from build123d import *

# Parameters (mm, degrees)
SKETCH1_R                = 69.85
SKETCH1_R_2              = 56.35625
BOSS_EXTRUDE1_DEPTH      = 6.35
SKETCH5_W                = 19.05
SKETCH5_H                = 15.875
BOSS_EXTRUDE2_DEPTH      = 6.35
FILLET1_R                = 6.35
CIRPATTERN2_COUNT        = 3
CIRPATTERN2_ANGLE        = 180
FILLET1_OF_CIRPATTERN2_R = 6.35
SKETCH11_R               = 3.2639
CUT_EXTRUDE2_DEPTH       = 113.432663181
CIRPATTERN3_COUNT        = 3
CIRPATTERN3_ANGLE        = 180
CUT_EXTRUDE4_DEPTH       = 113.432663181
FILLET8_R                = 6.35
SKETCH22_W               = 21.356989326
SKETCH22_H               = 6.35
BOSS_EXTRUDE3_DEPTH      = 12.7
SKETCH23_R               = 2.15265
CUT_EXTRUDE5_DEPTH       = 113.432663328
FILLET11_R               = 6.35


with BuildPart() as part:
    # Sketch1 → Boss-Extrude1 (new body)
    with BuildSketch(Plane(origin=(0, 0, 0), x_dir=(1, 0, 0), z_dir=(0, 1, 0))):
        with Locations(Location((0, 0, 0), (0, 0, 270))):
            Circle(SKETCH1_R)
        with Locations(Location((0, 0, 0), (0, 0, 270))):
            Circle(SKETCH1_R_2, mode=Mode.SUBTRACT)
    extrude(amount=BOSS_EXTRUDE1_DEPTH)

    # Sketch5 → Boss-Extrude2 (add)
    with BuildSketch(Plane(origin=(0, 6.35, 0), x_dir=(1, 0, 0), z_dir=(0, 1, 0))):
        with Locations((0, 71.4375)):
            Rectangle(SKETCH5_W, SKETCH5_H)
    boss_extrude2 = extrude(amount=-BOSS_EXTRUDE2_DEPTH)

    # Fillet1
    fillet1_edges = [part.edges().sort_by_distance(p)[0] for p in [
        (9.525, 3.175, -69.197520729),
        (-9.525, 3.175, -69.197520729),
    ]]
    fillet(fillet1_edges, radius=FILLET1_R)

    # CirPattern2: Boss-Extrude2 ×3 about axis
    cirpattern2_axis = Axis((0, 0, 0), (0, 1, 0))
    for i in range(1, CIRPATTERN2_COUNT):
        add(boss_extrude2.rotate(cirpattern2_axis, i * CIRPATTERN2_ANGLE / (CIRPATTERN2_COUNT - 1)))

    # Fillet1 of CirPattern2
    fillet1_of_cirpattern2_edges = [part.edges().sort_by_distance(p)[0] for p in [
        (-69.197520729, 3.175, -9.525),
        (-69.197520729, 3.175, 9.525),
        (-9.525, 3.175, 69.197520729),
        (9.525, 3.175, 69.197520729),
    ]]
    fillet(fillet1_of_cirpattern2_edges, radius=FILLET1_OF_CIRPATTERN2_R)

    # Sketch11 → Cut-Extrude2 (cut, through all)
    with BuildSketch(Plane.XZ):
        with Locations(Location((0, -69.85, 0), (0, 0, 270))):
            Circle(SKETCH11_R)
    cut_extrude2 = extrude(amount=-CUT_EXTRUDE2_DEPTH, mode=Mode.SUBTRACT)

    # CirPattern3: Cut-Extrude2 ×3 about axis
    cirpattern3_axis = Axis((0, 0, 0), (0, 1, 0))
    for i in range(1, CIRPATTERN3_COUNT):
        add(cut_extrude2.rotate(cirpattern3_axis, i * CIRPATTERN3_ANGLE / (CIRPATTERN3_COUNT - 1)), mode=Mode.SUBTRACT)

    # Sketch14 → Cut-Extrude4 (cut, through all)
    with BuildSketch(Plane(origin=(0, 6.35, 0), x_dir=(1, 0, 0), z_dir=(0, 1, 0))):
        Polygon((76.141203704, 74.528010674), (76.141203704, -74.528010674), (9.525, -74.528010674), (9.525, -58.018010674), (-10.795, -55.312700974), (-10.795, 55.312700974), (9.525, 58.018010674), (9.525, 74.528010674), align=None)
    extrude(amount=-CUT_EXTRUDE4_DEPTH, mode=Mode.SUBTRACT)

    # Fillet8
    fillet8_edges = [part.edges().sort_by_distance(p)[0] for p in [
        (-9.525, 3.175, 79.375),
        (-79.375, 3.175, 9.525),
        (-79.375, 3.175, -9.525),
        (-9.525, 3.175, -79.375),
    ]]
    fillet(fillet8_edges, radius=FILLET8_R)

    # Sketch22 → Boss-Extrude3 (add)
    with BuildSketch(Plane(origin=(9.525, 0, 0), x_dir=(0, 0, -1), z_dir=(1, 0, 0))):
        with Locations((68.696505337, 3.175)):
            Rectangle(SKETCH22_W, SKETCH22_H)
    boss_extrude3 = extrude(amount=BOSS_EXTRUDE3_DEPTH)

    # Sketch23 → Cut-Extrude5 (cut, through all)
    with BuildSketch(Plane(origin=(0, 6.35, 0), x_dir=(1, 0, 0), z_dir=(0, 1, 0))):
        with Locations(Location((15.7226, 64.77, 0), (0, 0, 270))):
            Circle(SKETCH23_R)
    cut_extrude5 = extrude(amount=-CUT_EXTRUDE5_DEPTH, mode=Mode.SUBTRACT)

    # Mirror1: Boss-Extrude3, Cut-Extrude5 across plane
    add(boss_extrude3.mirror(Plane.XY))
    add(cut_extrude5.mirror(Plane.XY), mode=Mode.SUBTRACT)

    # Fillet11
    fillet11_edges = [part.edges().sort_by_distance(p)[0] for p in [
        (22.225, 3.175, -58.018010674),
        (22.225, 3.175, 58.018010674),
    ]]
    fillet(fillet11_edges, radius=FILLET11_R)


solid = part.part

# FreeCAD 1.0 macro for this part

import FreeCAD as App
import Part
import Sketcher

V = App.Vector
Q = App.Units.Quantity


def edges_at(feature, points):
    """Names of the edges that pass closest to the given points."""
    edges = feature.Shape.Edges
    near = lambda p: min(range(len(edges)), key=lambda i: edges[i].distToShape(Part.Vertex(*p))[0])
    return sorted({f"Edge{near(p) + 1}" for p in points})


def add_polygon(sketch, points):
    """Adds a closed chain of lines whose ends are joined by coincident constraints."""
    first, n = sketch.GeometryCount, len(points)
    for a, b in zip(points, points[1:] + points[:1]):
        sketch.addGeometry(Part.LineSegment(App.Vector(*a, 0), App.Vector(*b, 0)), False)
    for i in range(n):
        sketch.addConstraint(Sketcher.Constraint("Coincident", first + i, 2, first + (i + 1) % n, 1))

doc = App.newDocument("Part")
body = doc.addObject("PartDesign::Body", "Body")

# Sketch on XZ plane
sketch1 = doc.addObject("Sketcher::SketchObject", "Sketch")
body.addObject(sketch1)
sketch1.AttachmentSupport = (doc.XZ_Plane, [""])
sketch1.MapMode = "FlatFace"
sketch1.addGeometry(Part.Circle(V(0, 0, 0), V(0, 0, 1), 69.85), False)
sketch1.addGeometry(Part.Circle(V(0, 0, 0), V(0, 0, 1), 56.35625), False)
sketch1.addConstraint(Sketcher.Constraint("Coincident", 0, 3, -1, 1))
sketch1.addConstraint(Sketcher.Constraint("Coincident", 1, 3, -1, 1))
sketch1.addConstraint(Sketcher.Constraint("Diameter", 0, Q("5.5 in")))
sketch1.addConstraint(Sketcher.Constraint("Diameter", 1, Q("4.4375 in")))
pad1 = doc.addObject("PartDesign::Pad", "Pad")
body.addObject(pad1)
pad1.Profile = sketch1
pad1.Length = Q("0.25 in")
pad1.Reversed = True

# Sketch on XZ plane
sketch2 = doc.addObject("Sketcher::SketchObject", "Sketch001")
body.addObject(sketch2)
sketch2.AttachmentSupport = (doc.XZ_Plane, [""])
sketch2.MapMode = "FlatFace"
sketch2.AttachmentOffset = App.Placement(V(0, 0, -0.25 * 25.4), App.Rotation())
add_polygon(sketch2, [(-9.525, -79.375), (-9.525, -63.5), (9.525, -63.5), (9.525, -79.375)])  # lines 0-3
sketch2.addConstraint(Sketcher.Constraint("Vertical", 0))
sketch2.addConstraint(Sketcher.Constraint("Horizontal", 1))
sketch2.addConstraint(Sketcher.Constraint("Vertical", 2))
sketch2.addConstraint(Sketcher.Constraint("Horizontal", 3))
sketch2.addConstraint(Sketcher.Constraint("DistanceX", 1, 1, 1, 2, Q("0.75 in")))
sketch2.addConstraint(Sketcher.Constraint("DistanceY", 0, 2, -1, 1, Q("2.5 in")))
sketch2.addConstraint(Sketcher.Constraint("DistanceY", 0, 1, 0, 2, Q("0.625 in")))
sketch2.addConstraint(Sketcher.Constraint("DistanceX", 0, 2, -1, 1, Q("0.375 in")))
pad2 = doc.addObject("PartDesign::Pad", "Pad001")
body.addObject(pad2)
pad2.Profile = sketch2
pad2.Length = Q("0.25 in")
doc.recompute()

fillet = doc.addObject("PartDesign::Fillet", "Fillet")
body.addObject(fillet)
fillet.Base = (pad2, edges_at(pad2, [(9.525, 3.175, -69.198), (-9.525, 3.175, -69.198)]))
fillet.Radius = Q("0.25 in")
doc.recompute()

polarpattern = doc.addObject("PartDesign::PolarPattern", "PolarPattern")
body.addObject(polarpattern)
polarpattern.Originals = [pad2]
polarpattern.Axis = (doc.Y_Axis, [""])
polarpattern.Angle = 180
polarpattern.Occurrences = 3
body.Tip = polarpattern
doc.recompute()

fillet2 = doc.addObject("PartDesign::Fillet", "Fillet001")
body.addObject(fillet2)
fillet2.Base = (polarpattern, edges_at(polarpattern, [
    (-69.198, 3.175, -9.525),
    (-69.198, 3.175, 9.525),
    (-9.525, 3.175, 69.198),
    (9.525, 3.175, 69.198),
]))
fillet2.Radius = Q("0.25 in")

# Sketch on XZ plane
sketch3 = doc.addObject("Sketcher::SketchObject", "Sketch002")
body.addObject(sketch3)
sketch3.AttachmentSupport = (doc.XZ_Plane, [""])
sketch3.MapMode = "FlatFace"
sketch3.addGeometry(Part.Circle(V(0, -69.85, 0), V(0, 0, 1), 3.2639), False)
sketch3.addConstraint(Sketcher.Constraint("PointOnObject", 0, 3, -2))
sketch3.addConstraint(Sketcher.Constraint("Diameter", 0, Q("0.257 in")))
sketch3.addConstraint(Sketcher.Constraint("DistanceY", 0, 3, -1, 1, Q("2.75 in")))
pocket1 = doc.addObject("PartDesign::Pocket", "Pocket")
body.addObject(pocket1)
pocket1.Profile = sketch3
pocket1.Type = "ThroughAll"
doc.recompute()

polarpattern2 = doc.addObject("PartDesign::PolarPattern", "PolarPattern001")
body.addObject(polarpattern2)
polarpattern2.Originals = [pocket1]
polarpattern2.Axis = (doc.Y_Axis, [""])
polarpattern2.Angle = 180
polarpattern2.Occurrences = 3
body.Tip = polarpattern2

# Sketch on XZ plane
sketch4 = doc.addObject("Sketcher::SketchObject", "Sketch003")
body.addObject(sketch4)
sketch4.AttachmentSupport = (doc.XZ_Plane, [""])
sketch4.MapMode = "FlatFace"
sketch4.AttachmentOffset = App.Placement(V(0, 0, -0.25 * 25.4), App.Rotation())
add_polygon(sketch4, [(76.141204, 74.528011), (76.141204, -74.528011), (9.525, -74.528011), (9.525, -58.018011), (-10.795, -55.312701), (-10.795, 55.312701), (9.525, 58.018011), (9.525, 74.528011)])  # lines 0-7
sketch4.addConstraint(Sketcher.Constraint("Vertical", 0))
sketch4.addConstraint(Sketcher.Constraint("Horizontal", 1))
sketch4.addConstraint(Sketcher.Constraint("Vertical", 2))
sketch4.addConstraint(Sketcher.Constraint("Vertical", 4))
sketch4.addConstraint(Sketcher.Constraint("Vertical", 6))
sketch4.addConstraint(Sketcher.Constraint("Horizontal", 7))
sketch4.addConstraint(Sketcher.Constraint("Symmetric", 2, 2, 5, 2, -1))
sketch4.addConstraint(Sketcher.Constraint("Equal", 2, 6))
sketch4.addConstraint(Sketcher.Constraint("Equal", 3, 5))
sketch4.addConstraint(Sketcher.Constraint("DistanceY", 2, 1, 2, 2, Q("0.65 in")))
sketch4.addConstraint(Sketcher.Constraint("DistanceX", 3, 2, 2, 2, Q("0.8 in")))
sketch4.addConstraint(Sketcher.Constraint("DistanceX", -1, 1, 1, 2, Q("0.375 in")))
sketch4.addConstraint(Sketcher.Constraint("DistanceY", 4, 1, 4, 2, 110.625402))
sketch4.addConstraint(Sketcher.Constraint("DistanceY", 0, 2, 0, 1, 149.056021))
sketch4.addConstraint(Sketcher.Constraint("DistanceX", 1, 2, 1, 1, 66.616204))
pocket2 = doc.addObject("PartDesign::Pocket", "Pocket001")
body.addObject(pocket2)
pocket2.Profile = sketch4
pocket2.Type = "ThroughAll"
pocket2.Reversed = True
doc.recompute()

fillet3 = doc.addObject("PartDesign::Fillet", "Fillet002")
body.addObject(fillet3)
fillet3.Base = (pocket2, edges_at(pocket2, [
    (-9.525, 3.175, 79.375),
    (-79.375, 3.175, 9.525),
    (-79.375, 3.175, -9.525),
    (-9.525, 3.175, -79.375),
]))
fillet3.Radius = Q("0.25 in")

# Sketch on YZ plane
sketch5 = doc.addObject("Sketcher::SketchObject", "Sketch004")
body.addObject(sketch5)
sketch5.AttachmentSupport = (doc.YZ_Plane, [""])
sketch5.MapMode = "FlatFace"
sketch5.AttachmentOffset = App.Placement(V(0, 0, 0.375 * 25.4), App.Rotation())
add_polygon(sketch5, [(6.35, -58.018011), (0, -58.018011), (0, -79.375), (6.35, -79.375)])  # lines 0-3
sketch5.addConstraint(Sketcher.Constraint("Horizontal", 0))
sketch5.addConstraint(Sketcher.Constraint("Vertical", 1))
sketch5.addConstraint(Sketcher.Constraint("Horizontal", 2))
sketch5.addConstraint(Sketcher.Constraint("Vertical", 3))
sketch5.addConstraint(Sketcher.Constraint("PointOnObject", 0, 2, -2))
sketch5.addConstraint(Sketcher.Constraint("DistanceX", 0, 2, 0, 1, Q("0.25 in")))
sketch5.addConstraint(Sketcher.Constraint("DistanceY", 1, 2, -1, 1, Q("3.125 in")))
sketch5.addConstraint(Sketcher.Constraint("DistanceY", 1, 2, 1, 1, 21.356989))
pad3 = doc.addObject("PartDesign::Pad", "Pad002")
body.addObject(pad3)
pad3.Profile = sketch5
pad3.Length = Q("0.5 in")

# Sketch on XZ plane
sketch6 = doc.addObject("Sketcher::SketchObject", "Sketch005")
body.addObject(sketch6)
sketch6.AttachmentSupport = (doc.XZ_Plane, [""])
sketch6.MapMode = "FlatFace"
sketch6.AttachmentOffset = App.Placement(V(0, 0, -0.25 * 25.4), App.Rotation())
sketch6.addGeometry(Part.Circle(V(15.7226, -64.77, 0), V(0, 0, 1), 2.15265), False)
sketch6.addConstraint(Sketcher.Constraint("Diameter", 0, Q("0.1695 in")))
sketch6.addConstraint(Sketcher.Constraint("DistanceY", 0, 3, -1, 1, Q("2.55 in")))
sketch6.addConstraint(Sketcher.Constraint("DistanceX", -1, 1, 0, 3, Q("0.619 in")))
pocket3 = doc.addObject("PartDesign::Pocket", "Pocket002")
body.addObject(pocket3)
pocket3.Profile = sketch6
pocket3.Type = "ThroughAll"
pocket3.Reversed = True
doc.recompute()

mirrored = doc.addObject("PartDesign::Mirrored", "Mirrored")
body.addObject(mirrored)
mirrored.Originals = [pad3, pocket3]
mirrored.MirrorPlane = (doc.XY_Plane, [""])
body.Tip = mirrored
doc.recompute()

fillet4 = doc.addObject("PartDesign::Fillet", "Fillet003")
body.addObject(fillet4)
fillet4.Base = (mirrored, edges_at(mirrored, [(22.225, 3.175, -58.018), (22.225, 3.175, 58.018)]))
fillet4.Radius = Q("0.25 in")

doc.recompute()
